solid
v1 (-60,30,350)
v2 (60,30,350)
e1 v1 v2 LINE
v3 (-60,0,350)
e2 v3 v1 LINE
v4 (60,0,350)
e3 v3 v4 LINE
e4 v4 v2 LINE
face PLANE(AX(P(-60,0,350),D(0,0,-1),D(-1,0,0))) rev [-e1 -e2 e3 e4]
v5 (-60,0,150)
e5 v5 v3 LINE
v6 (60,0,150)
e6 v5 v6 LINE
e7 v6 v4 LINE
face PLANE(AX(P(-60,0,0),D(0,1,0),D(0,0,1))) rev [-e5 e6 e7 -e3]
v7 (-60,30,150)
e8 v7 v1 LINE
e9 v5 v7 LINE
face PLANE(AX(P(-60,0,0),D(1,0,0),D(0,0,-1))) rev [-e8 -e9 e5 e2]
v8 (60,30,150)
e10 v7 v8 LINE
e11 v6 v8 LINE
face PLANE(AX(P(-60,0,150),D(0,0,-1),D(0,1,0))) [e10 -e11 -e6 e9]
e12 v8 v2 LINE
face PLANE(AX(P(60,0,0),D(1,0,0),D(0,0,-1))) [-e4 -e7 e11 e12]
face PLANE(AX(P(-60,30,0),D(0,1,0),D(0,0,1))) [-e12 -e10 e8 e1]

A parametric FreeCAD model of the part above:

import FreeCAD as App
import Part
import Sketcher
Q = App.Units.Quantity

doc = App.newDocument("Part")
body = doc.addObject("PartDesign::Body", "Body")

# Sketch on YZ plane
sketch1 = body.newObject("Sketcher::SketchObject", "Sketch")
sketch1.AttachmentSupport = (doc.getObject("YZ_Plane"), [""])
sketch1.MapMode = "FlatFace"
sketch1.addGeometry([
    Part.LineSegment(App.Vector(0, 350, 0), App.Vector(0, 150, 0)),
    Part.LineSegment(App.Vector(0, 150, 0), App.Vector(30, 150, 0)),
    Part.LineSegment(App.Vector(30, 150, 0), App.Vector(30, 350, 0)),
    Part.LineSegment(App.Vector(30, 350, 0), App.Vector(0, 350, 0)),
], False)
sketch1.addConstraint([
    Sketcher.Constraint("Coincident", 0, 2, 1, 1),
    Sketcher.Constraint("Coincident", 1, 2, 2, 1),
    Sketcher.Constraint("Coincident", 2, 2, 3, 1),
    Sketcher.Constraint("Coincident", 3, 2, 0, 1),
    Sketcher.Constraint("Vertical", 0),
    Sketcher.Constraint("Horizontal", 1),
    Sketcher.Constraint("Vertical", 2),
    Sketcher.Constraint("Horizontal", 3),
    Sketcher.Constraint("PointOnObject", 0, 2, -2),
    Sketcher.Constraint("DistanceX", 1, 1, 1, 2, Q("30 mm")),
    Sketcher.Constraint("DistanceY", 0, 2, 0, 1, Q("200 mm")),
    Sketcher.Constraint("DistanceY", -1, 1, 0, 2, Q("150 mm")),
])
pad1 = body.newObject("PartDesign::Pad", "Pad")
pad1.Profile = sketch1
pad1.Type = "TwoLengths"
pad1.Length = 60
pad1.Length2 = 60

doc.recompute()
